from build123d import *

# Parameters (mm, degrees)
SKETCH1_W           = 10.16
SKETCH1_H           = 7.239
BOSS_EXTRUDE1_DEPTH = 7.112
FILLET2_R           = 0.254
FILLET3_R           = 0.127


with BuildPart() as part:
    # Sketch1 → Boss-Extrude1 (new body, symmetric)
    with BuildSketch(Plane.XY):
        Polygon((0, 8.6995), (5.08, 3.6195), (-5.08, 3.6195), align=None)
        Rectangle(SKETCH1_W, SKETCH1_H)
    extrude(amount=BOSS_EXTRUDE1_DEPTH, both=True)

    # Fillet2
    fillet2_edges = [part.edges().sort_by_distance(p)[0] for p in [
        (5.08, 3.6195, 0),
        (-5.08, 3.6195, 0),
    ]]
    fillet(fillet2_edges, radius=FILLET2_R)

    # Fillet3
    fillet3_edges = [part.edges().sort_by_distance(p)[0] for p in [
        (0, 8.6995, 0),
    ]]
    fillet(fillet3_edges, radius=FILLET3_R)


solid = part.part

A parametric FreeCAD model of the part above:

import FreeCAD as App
import Part
import Sketcher
Q = App.Units.Quantity


def edges_at(feature, points):
    """Names of the edges that pass closest to the given points."""
    edges = feature.Shape.Edges
    near = lambda p: min(range(len(edges)), key=lambda i: edges[i].distToShape(Part.Vertex(*p))[0])
    return sorted({f"Edge{near(p) + 1}" for p in points})


def add_polygon(sketch, points):
    """Adds a closed chain of lines whose ends are joined by coincident constraints."""
    first, n = sketch.GeometryCount, len(points)
    for a, b in zip(points, points[1:] + points[:1]):
        sketch.addGeometry(Part.LineSegment(App.Vector(*a, 0), App.Vector(*b, 0)), False)
    for i in range(n):
        sketch.addConstraint(Sketcher.Constraint("Coincident", first + i, 2, first + (i + 1) % n, 1))

doc = App.newDocument("Part")
body = doc.addObject("PartDesign::Body", "Body")

# Sketch on XY plane
sketch1 = doc.addObject("Sketcher::SketchObject", "Sketch")
body.addObject(sketch1)
sketch1.AttachmentSupport = (doc.XY_Plane, [""])
sketch1.MapMode = "FlatFace"
add_polygon(sketch1, [(5, 4), (0, 9), (-5, 4), (-5, -4), (5, -4)])  # lines 0-4
sketch1.addConstraint(Sketcher.Constraint("Vertical", 2))
sketch1.addConstraint(Sketcher.Constraint("Horizontal", 3))
sketch1.addConstraint(Sketcher.Constraint("Vertical", 4))
sketch1.addConstraint(Sketcher.Constraint("Symmetric", 1, 2, 3, 2, -1, 1))
sketch1.addConstraint(Sketcher.Constraint("PointOnObject", 0, 2, -2))
sketch1.addConstraint(Sketcher.Constraint("Perpendicular", 0, 1))
sketch1.addConstraint(Sketcher.Constraint("Horizontal", 1, 2, 4, 2))
sketch1.addConstraint(Sketcher.Constraint("DistanceX", 3, 1, 3, 2, Q("0.4 in")))
sketch1.addConstraint(Sketcher.Constraint("DistanceY", 2, 2, 2, 1, Q("0.285 in")))
pad1 = doc.addObject("PartDesign::Pad", "Pad")
body.addObject(pad1)
pad1.Profile = sketch1
pad1.Length = Q("0.56 in")
pad1.Midplane = True
doc.recompute()

fillet = doc.addObject("PartDesign::Fillet", "Fillet")
body.addObject(fillet)
fillet.Base = (pad1, edges_at(pad1, [(5.08, 3.619, 0), (-5.08, 3.619, 0)]))
fillet.Radius = Q("0.01 in")
doc.recompute()

fillet2 = doc.addObject("PartDesign::Fillet", "Fillet001")
body.addObject(fillet2)
fillet2.Base = (fillet, edges_at(fillet, [(0, 8.7, 0)]))
fillet2.Radius = Q("0.005 in")

doc.recompute()
